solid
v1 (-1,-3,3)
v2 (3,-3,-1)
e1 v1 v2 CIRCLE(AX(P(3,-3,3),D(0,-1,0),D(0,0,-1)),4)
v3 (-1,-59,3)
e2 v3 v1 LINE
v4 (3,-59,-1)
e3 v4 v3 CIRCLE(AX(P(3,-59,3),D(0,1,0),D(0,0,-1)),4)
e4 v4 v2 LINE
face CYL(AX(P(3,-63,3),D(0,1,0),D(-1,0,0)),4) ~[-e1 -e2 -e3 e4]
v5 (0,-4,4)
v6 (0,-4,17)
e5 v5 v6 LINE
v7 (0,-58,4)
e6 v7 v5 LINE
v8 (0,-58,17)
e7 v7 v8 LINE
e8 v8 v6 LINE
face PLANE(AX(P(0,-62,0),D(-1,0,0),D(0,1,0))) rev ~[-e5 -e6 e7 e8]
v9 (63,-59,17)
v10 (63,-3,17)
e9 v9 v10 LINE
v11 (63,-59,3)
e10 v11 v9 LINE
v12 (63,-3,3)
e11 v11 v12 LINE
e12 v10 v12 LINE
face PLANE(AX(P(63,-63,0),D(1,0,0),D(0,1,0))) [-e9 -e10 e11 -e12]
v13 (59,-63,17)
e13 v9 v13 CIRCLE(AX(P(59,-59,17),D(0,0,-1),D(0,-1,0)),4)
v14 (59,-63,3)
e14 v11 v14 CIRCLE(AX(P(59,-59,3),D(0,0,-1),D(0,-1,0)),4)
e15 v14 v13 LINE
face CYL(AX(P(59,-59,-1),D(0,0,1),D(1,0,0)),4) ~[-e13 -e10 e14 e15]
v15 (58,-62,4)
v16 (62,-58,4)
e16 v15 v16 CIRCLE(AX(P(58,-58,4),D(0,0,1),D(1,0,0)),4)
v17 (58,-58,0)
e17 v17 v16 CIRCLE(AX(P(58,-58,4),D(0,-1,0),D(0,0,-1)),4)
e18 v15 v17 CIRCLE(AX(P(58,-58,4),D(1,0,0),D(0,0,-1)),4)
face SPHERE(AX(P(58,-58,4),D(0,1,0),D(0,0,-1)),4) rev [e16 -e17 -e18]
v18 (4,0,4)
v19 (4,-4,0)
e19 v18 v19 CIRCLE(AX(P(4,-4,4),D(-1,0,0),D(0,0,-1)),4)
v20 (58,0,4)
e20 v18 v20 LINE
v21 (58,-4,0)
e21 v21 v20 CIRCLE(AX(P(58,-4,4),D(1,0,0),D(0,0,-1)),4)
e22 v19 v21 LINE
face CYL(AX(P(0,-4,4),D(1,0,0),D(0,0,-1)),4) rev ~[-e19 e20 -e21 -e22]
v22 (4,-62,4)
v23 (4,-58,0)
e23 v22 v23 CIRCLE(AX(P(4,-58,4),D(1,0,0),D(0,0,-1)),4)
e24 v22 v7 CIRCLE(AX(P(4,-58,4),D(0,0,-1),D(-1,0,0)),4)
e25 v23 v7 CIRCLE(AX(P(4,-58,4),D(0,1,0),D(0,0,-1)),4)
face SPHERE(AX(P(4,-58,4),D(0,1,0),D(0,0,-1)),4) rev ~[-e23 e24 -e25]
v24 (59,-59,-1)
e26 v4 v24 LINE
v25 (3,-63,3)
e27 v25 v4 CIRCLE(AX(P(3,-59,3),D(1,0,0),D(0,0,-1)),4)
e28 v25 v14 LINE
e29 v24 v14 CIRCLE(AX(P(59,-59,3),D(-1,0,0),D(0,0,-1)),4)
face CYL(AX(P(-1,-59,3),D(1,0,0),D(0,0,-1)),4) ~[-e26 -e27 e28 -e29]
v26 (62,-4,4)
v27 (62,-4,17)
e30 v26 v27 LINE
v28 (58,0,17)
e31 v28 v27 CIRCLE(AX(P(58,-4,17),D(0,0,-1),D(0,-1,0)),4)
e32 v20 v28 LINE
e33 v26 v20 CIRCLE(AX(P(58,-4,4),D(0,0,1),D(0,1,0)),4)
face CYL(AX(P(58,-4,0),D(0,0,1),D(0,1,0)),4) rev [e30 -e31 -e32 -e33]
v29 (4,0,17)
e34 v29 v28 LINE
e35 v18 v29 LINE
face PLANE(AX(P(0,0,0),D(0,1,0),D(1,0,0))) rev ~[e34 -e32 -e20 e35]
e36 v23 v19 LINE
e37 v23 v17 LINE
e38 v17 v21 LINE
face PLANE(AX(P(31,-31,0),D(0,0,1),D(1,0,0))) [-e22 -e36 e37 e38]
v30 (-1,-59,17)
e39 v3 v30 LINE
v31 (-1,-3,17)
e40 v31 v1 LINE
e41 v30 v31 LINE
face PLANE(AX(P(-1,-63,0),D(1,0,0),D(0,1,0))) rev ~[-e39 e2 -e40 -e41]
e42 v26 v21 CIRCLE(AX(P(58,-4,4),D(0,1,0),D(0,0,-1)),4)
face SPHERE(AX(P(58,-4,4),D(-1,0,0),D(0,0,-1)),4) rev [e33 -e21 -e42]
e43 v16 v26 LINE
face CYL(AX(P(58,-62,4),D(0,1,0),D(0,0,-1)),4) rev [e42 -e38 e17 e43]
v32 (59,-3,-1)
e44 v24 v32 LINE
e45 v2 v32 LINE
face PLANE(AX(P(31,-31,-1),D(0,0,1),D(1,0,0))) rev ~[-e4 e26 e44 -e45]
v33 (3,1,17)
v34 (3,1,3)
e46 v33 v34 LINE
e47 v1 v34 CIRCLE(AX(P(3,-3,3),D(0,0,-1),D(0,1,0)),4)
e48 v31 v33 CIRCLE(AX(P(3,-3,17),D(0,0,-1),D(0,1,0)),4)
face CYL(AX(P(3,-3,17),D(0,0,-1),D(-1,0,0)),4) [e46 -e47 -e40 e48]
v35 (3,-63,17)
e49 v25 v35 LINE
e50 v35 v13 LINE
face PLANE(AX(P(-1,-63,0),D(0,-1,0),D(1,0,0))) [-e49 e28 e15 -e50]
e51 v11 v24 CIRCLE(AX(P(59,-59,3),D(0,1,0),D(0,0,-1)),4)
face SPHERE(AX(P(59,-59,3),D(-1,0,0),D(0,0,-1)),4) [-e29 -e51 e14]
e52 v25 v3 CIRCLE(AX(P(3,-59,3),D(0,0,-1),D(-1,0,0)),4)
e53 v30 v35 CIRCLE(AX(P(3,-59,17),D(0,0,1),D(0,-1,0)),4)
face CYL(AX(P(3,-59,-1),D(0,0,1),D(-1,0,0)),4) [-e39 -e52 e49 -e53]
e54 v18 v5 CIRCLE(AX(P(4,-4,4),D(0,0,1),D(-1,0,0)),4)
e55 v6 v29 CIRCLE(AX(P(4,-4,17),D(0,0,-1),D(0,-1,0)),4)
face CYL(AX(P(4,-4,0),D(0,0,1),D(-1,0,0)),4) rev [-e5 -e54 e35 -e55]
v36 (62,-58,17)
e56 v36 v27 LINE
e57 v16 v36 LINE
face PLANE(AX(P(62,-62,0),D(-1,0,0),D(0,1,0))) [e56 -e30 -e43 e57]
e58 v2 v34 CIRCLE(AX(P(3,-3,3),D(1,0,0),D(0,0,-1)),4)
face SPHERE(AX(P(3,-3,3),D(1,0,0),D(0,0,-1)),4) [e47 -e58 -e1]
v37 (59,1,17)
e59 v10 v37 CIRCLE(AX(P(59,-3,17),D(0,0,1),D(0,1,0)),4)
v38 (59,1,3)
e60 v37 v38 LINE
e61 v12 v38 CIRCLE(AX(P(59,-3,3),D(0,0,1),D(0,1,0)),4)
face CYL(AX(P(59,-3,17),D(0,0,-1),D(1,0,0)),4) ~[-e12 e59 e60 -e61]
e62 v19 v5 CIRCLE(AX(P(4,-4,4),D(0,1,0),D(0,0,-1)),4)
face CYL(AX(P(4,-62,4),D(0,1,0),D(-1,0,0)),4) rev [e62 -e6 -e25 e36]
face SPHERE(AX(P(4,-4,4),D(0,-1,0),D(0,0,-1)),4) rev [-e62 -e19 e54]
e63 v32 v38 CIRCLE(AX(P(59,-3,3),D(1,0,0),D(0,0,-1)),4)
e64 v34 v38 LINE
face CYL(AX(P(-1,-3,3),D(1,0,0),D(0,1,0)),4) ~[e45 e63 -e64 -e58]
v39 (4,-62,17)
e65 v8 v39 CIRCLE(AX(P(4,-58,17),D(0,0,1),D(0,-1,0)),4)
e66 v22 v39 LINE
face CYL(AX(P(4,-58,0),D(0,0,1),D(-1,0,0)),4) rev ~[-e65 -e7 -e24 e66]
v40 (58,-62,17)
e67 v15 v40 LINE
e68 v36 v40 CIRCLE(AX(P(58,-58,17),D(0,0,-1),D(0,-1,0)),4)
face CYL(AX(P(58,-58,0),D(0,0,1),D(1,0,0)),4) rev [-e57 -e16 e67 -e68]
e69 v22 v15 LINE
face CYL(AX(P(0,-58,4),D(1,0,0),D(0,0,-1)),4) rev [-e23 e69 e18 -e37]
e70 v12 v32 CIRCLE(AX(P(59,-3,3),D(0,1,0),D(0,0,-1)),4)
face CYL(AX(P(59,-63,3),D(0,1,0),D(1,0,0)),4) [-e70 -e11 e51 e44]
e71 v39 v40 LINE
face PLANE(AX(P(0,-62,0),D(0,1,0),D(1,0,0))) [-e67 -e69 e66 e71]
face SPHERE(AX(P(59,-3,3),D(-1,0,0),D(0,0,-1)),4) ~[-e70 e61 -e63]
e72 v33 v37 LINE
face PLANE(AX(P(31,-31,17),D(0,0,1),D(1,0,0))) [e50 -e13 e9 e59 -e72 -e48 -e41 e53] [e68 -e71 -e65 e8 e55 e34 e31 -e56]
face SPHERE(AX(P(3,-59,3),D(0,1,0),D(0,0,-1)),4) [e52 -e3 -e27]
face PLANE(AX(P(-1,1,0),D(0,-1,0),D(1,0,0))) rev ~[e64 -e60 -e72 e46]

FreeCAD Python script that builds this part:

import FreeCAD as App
import Part
import Sketcher


def edges_at(feature, points):
    """Names of the edges that pass closest to the given points."""
    edges = feature.Shape.Edges
    near = lambda p: min(range(len(edges)), key=lambda i: edges[i].distToShape(Part.Vertex(*p))[0])
    return sorted({f"Edge{near(p) + 1}" for p in points})

doc = App.newDocument("Part")
body = doc.addObject("PartDesign::Body", "Body")

sketch1 = body.newObject("Sketcher::SketchObject", "Sketch")
sketch1.AttachmentSupport = (doc.getObject("XY_Plane"), [""])
sketch1.MapMode = "FlatFace"
sketch1.addGeometry([
    Part.LineSegment(App.Vector(-1, 1, 0), App.Vector(-1, -63, 0)),
    Part.LineSegment(App.Vector(-1, -63, 0), App.Vector(63, -63, 0)),
    Part.LineSegment(App.Vector(63, -63, 0), App.Vector(63, 1, 0)),
    Part.LineSegment(App.Vector(63, 1, 0), App.Vector(-1, 1, 0)),
    Part.LineSegment(App.Vector(62, -62, 0), App.Vector(0, -62, 0)),
    Part.LineSegment(App.Vector(0, -62, 0), App.Vector(0, 0, 0)),
    Part.LineSegment(App.Vector(0, 0, 0), App.Vector(62, 0, 0)),
    Part.LineSegment(App.Vector(62, 0, 0), App.Vector(62, -62, 0)),
], False)
sketch1.addConstraint([
    Sketcher.Constraint("Coincident", 0, 2, 1, 1),
    Sketcher.Constraint("Coincident", 1, 2, 2, 1),
    Sketcher.Constraint("Coincident", 2, 2, 3, 1),
    Sketcher.Constraint("Coincident", 3, 2, 0, 1),
    Sketcher.Constraint("Coincident", 4, 2, 5, 1),
    Sketcher.Constraint("Coincident", 5, 2, 6, 1),
    Sketcher.Constraint("Coincident", 6, 2, 7, 1),
    Sketcher.Constraint("Coincident", 7, 2, 4, 1),
    Sketcher.Constraint("Vertical", 0),
    Sketcher.Constraint("Horizontal", 1),
    Sketcher.Constraint("Vertical", 2),
    Sketcher.Constraint("Horizontal", 3),
    Sketcher.Constraint("Horizontal", 4),
    Sketcher.Constraint("Vertical", 5),
    Sketcher.Constraint("Horizontal", 6),
    Sketcher.Constraint("Vertical", 7),
    Sketcher.Constraint("Coincident", 5, 2, -1, 1),
    Sketcher.Constraint("Equal", 3, 0),
    Sketcher.Constraint("Equal", 6, 5),
    Sketcher.Constraint("DistanceX", 1, 1, 1, 2, 64.0),
    Sketcher.Constraint("DistanceX", 4, 2, 4, 1, 62.0),
    Sketcher.Constraint("DistanceX", 0, 2, -1, 1, 1.0),
    Sketcher.Constraint("DistanceY", 0, 2, -1, 1, 63.0),
])
pad1 = body.newObject("PartDesign::Pad", "Pad")
pad1.Profile = sketch1
pad1.Length = 17

sketch2 = body.newObject("Sketcher::SketchObject", "Sketch001")
sketch2.AttachmentSupport = (doc.getObject("XY_Plane"), [""])
sketch2.MapMode = "FlatFace"
sketch2.addGeometry([
    Part.LineSegment(App.Vector(-1, 1, 0), App.Vector(-1, -63, 0)),
    Part.LineSegment(App.Vector(-1, -63, 0), App.Vector(63, -63, 0)),
    Part.LineSegment(App.Vector(63, -63, 0), App.Vector(63, 1, 0)),
    Part.LineSegment(App.Vector(63, 1, 0), App.Vector(-1, 1, 0)),
], False)
sketch2.addConstraint([
    Sketcher.Constraint("Coincident", 0, 2, 1, 1),
    Sketcher.Constraint("Coincident", 1, 2, 2, 1),
    Sketcher.Constraint("Coincident", 2, 2, 3, 1),
    Sketcher.Constraint("Coincident", 3, 2, 0, 1),
    Sketcher.Constraint("Vertical", 0),
    Sketcher.Constraint("Horizontal", 1),
    Sketcher.Constraint("Vertical", 2),
    Sketcher.Constraint("Horizontal", 3),
    Sketcher.Constraint("Equal", 3, 0),
    Sketcher.Constraint("DistanceX", 1, 1, 1, 2, 64.0),
    Sketcher.Constraint("DistanceX", 0, 2, -1, 1, 1.0),
    Sketcher.Constraint("DistanceY", 0, 2, -1, 1, 63.0),
])
pad2 = body.newObject("PartDesign::Pad", "Pad001")
pad2.Profile = sketch2
pad2.Length = 1
pad2.Reversed = True
doc.recompute()

fillet = body.newObject("PartDesign::Fillet", "Fillet")
fillet.Base = (pad2, edges_at(pad2, [
    (0, -31, 0),
    (31, 0, 0),
    (62, -31, 0),
    (31, -62, 0),
    (31, 1, -1),
    (-1, -31, -1),
    (31, -63, -1),
    (63, -31, -1),
    (0, -62, 8.5),
    (0, 0, 8.5),
    (62, 0, 8.5),
    (62, -62, 8.5),
    (-1, 1, 8),
    (63, 1, 8),
    (63, -63, 8),
    (-1, -63, 8),
]))
fillet.Radius = 4

doc.recompute()
